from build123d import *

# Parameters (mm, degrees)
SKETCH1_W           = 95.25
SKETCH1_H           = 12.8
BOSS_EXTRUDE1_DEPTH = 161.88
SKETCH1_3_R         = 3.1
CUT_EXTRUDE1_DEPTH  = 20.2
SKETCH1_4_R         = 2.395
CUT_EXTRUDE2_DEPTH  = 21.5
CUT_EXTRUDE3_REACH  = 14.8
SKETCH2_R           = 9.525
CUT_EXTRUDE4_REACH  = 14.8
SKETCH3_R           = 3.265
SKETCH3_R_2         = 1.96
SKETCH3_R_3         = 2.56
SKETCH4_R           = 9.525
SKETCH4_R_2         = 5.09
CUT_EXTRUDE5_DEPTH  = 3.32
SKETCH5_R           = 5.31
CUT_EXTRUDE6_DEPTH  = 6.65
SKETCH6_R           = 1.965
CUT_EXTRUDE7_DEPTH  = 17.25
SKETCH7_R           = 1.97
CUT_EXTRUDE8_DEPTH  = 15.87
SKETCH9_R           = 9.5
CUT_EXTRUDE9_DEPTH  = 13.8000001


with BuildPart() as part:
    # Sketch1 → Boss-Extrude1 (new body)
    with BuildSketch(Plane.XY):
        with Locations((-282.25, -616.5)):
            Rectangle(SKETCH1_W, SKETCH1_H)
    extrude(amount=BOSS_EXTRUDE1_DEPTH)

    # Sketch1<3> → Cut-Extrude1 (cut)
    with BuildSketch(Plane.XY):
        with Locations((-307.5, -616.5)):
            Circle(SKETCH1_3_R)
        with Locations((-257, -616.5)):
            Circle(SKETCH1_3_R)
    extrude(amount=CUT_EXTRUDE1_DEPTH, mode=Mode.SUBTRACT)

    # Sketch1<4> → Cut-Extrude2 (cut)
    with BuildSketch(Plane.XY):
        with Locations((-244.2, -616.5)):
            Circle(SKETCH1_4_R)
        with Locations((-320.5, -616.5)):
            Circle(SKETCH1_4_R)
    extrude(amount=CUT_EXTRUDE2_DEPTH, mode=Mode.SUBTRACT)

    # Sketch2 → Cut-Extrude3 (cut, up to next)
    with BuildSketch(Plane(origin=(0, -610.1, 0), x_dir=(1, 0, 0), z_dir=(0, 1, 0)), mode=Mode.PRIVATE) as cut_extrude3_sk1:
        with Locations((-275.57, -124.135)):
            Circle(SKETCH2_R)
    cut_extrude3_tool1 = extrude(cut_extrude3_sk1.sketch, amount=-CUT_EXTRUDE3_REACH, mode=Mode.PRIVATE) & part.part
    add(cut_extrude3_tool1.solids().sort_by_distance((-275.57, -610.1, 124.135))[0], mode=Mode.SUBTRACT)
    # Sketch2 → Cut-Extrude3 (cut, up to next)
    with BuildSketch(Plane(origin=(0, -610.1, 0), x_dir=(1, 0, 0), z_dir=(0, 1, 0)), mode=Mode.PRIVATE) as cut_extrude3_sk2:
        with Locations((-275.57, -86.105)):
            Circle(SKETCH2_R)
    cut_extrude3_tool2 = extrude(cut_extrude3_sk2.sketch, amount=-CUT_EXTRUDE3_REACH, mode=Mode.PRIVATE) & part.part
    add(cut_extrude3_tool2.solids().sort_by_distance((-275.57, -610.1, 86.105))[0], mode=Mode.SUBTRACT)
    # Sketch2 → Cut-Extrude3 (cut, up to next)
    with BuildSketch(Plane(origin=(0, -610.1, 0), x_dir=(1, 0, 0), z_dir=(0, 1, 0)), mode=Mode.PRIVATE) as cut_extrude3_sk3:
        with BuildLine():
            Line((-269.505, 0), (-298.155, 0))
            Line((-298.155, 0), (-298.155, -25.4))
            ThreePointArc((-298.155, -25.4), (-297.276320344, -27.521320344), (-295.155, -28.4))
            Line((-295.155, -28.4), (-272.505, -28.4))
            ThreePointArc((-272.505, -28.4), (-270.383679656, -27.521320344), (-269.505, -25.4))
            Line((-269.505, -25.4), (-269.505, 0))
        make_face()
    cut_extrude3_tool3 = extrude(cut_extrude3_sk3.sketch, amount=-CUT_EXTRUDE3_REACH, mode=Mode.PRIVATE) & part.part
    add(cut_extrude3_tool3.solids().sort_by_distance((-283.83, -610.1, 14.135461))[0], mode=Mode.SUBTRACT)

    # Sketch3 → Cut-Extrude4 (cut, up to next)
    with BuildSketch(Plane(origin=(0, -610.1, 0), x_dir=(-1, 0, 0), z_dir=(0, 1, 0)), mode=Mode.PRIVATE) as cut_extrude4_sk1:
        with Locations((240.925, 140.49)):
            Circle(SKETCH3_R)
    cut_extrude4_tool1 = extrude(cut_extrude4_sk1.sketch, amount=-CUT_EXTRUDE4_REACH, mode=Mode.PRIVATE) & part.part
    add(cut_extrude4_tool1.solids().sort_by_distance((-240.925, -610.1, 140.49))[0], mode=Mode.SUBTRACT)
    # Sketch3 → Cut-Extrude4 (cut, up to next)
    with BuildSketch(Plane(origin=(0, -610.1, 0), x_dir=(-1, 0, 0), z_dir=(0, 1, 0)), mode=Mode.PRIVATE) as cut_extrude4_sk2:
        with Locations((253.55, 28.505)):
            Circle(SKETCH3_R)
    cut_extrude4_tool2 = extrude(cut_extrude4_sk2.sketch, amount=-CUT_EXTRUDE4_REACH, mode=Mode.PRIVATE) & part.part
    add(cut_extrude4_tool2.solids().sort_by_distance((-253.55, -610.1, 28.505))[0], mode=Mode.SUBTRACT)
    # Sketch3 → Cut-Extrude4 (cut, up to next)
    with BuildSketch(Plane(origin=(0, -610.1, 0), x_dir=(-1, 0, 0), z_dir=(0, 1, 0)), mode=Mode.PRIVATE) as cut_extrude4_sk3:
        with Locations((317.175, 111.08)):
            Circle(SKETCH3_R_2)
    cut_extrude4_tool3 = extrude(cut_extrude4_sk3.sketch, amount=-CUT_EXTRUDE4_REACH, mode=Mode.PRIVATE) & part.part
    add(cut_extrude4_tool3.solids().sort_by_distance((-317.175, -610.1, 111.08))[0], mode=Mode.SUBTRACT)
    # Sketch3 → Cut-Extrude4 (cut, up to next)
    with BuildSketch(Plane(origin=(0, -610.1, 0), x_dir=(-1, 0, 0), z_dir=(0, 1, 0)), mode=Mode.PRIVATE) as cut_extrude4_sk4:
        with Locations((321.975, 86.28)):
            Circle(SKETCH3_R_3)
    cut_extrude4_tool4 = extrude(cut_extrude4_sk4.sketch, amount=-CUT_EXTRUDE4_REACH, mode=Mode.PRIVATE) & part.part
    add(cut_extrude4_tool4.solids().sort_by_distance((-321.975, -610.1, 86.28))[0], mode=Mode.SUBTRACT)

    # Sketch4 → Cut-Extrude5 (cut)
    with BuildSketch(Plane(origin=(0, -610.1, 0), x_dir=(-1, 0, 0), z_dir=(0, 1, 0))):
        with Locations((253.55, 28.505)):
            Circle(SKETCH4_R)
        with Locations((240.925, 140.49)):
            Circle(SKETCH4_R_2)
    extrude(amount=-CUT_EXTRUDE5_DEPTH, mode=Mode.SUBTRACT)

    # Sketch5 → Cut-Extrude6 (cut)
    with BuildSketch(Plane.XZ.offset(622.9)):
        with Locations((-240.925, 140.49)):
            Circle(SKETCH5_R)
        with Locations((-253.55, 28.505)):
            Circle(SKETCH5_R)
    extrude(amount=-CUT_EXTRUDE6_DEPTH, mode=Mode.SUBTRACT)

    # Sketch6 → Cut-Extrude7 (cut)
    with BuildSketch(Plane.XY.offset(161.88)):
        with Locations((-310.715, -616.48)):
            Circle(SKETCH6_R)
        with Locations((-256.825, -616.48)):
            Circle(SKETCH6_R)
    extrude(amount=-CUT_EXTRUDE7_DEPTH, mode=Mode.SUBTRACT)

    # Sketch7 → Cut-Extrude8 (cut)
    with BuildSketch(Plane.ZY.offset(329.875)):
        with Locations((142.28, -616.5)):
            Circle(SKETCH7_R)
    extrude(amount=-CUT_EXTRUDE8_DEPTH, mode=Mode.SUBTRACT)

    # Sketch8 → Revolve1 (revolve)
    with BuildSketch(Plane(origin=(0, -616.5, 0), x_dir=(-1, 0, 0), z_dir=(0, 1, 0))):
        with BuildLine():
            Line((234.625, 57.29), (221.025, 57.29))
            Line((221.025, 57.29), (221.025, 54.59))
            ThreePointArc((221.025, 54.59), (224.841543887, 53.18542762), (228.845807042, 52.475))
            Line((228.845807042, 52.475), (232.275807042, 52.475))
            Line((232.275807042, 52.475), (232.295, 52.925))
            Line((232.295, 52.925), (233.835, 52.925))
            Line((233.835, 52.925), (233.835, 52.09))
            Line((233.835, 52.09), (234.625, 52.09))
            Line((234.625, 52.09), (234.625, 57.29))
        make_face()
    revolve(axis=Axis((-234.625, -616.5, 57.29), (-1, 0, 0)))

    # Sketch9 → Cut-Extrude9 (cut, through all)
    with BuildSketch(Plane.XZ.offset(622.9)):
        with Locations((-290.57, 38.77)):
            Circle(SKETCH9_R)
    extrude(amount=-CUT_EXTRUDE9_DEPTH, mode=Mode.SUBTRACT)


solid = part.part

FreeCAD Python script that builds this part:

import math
import FreeCAD as App
import Part
import Sketcher

doc = App.newDocument("Part")
body = doc.addObject("PartDesign::Body", "Body")

sketch1 = body.newObject("Sketcher::SketchObject", "Sketch")
sketch1.AttachmentSupport = (doc.getObject("XY_Plane"), [""])
sketch1.MapMode = "FlatFace"
sketch1.addGeometry([
    Part.LineSegment(App.Vector(-329.875, -610.1, 0), App.Vector(-329.875, -622.9, 0)),
    Part.LineSegment(App.Vector(-329.875, -622.9, 0), App.Vector(-234.625, -622.9, 0)),
    Part.LineSegment(App.Vector(-234.625, -622.9, 0), App.Vector(-234.625, -610.1, 0)),
    Part.LineSegment(App.Vector(-234.625, -610.1, 0), App.Vector(-329.875, -610.1, 0)),
], False)
sketch1.addConstraint([
    Sketcher.Constraint("Coincident", 0, 2, 1, 1),
    Sketcher.Constraint("Coincident", 1, 2, 2, 1),
    Sketcher.Constraint("Coincident", 2, 2, 3, 1),
    Sketcher.Constraint("Coincident", 3, 2, 0, 1),
    Sketcher.Constraint("Vertical", 0),
    Sketcher.Constraint("Horizontal", 1),
    Sketcher.Constraint("Vertical", 2),
    Sketcher.Constraint("Horizontal", 3),
    Sketcher.Constraint("DistanceY", 0, 2, 0, 1, 12.8),
    Sketcher.Constraint("DistanceX", 1, 1, 1, 2, 95.25),
    Sketcher.Constraint("DistanceY", 0, 2, -1, 1, 622.9),
    Sketcher.Constraint("DistanceX", 0, 2, -1, 1, 329.875),
])
pad1 = body.newObject("PartDesign::Pad", "Pad")
pad1.Profile = sketch1
pad1.Length = 161.88

sketch2 = body.newObject("Sketcher::SketchObject", "Sketch001")
sketch2.AttachmentSupport = (doc.getObject("XY_Plane"), [""])
sketch2.MapMode = "FlatFace"
sketch2.addGeometry([
    Part.Circle(App.Vector(-307.5, -616.5, 0), App.Vector(0, 0, 1), 3.1),
    Part.Circle(App.Vector(-257, -616.5, 0), App.Vector(0, 0, 1), 3.1),
], False)
sketch2.addConstraint([
    Sketcher.Constraint("Equal", 0, 1),
    Sketcher.Constraint("Horizontal", 0, 3, 1, 3),
    Sketcher.Constraint("Diameter", 0, 6.2),
    Sketcher.Constraint("DistanceX", 1, 3, -1, 1, 257.0),
    Sketcher.Constraint("DistanceX", 0, 3, -1, 1, 307.5),
    Sketcher.Constraint("DistanceY", 0, 3, -1, 1, 616.5),
])
pocket1 = body.newObject("PartDesign::Pocket", "Pocket")
pocket1.Profile = sketch2
pocket1.Length = 20.2
pocket1.Reversed = True

sketch3 = body.newObject("Sketcher::SketchObject", "Sketch002")
sketch3.AttachmentSupport = (doc.getObject("XY_Plane"), [""])
sketch3.MapMode = "FlatFace"
sketch3.addGeometry([
    Part.Circle(App.Vector(-244.2, -616.5, 0), App.Vector(0, 0, 1), 2.395),
    Part.Circle(App.Vector(-320.5, -616.5, 0), App.Vector(0, 0, 1), 2.395),
], False)
sketch3.addConstraint([
    Sketcher.Constraint("Equal", 0, 1),
    Sketcher.Constraint("Horizontal", 0, 3, 1, 3),
    Sketcher.Constraint("Diameter", 0, 4.79),
    Sketcher.Constraint("DistanceX", 0, 3, -1, 1, 244.2),
    Sketcher.Constraint("DistanceY", 0, 3, -1, 1, 616.5),
    Sketcher.Constraint("DistanceX", 1, 3, -1, 1, 320.5),
])
pocket2 = body.newObject("PartDesign::Pocket", "Pocket001")
pocket2.Profile = sketch3
pocket2.Length = 21.5
pocket2.Reversed = True

sketch4 = body.newObject("Sketcher::SketchObject", "Sketch003")
sketch4.AttachmentSupport = (doc.getObject("XZ_Plane"), [""])
sketch4.MapMode = "FlatFace"
sketch4.AttachmentOffset = App.Placement(App.Vector(0, 0, 610.1), App.Rotation())
sketch4.addGeometry(Part.Circle(App.Vector(-275.57, 124.135, 0), App.Vector(0, 0, 1), 9.525), False)
sketch4.addConstraint([
    Sketcher.Constraint("Diameter", 0, 19.05),
    Sketcher.Constraint("DistanceX", 0, 3, -1, 1, 275.57),
    Sketcher.Constraint("DistanceY", -1, 1, 0, 3, 124.135),
])
pocket3 = body.newObject("PartDesign::Pocket", "Pocket002")
pocket3.Profile = sketch4
pocket3.Type = "UpToFirst"
pocket3.Reversed = True

sketch5 = body.newObject("Sketcher::SketchObject", "Sketch004")
sketch5.AttachmentSupport = (doc.getObject("XZ_Plane"), [""])
sketch5.MapMode = "FlatFace"
sketch5.AttachmentOffset = App.Placement(App.Vector(0, 0, 610.1), App.Rotation())
sketch5.addGeometry(Part.Circle(App.Vector(-275.57, 86.105, 0), App.Vector(0, 0, 1), 9.525), False)
sketch5.addConstraint([
    Sketcher.Constraint("Diameter", 0, 19.05),
    Sketcher.Constraint("DistanceX", 0, 3, -1, 1, 275.57),
    Sketcher.Constraint("DistanceY", -1, 1, 0, 3, 86.105),
])
pocket4 = body.newObject("PartDesign::Pocket", "Pocket003")
pocket4.Profile = sketch5
pocket4.Type = "UpToFirst"
pocket4.Reversed = True

sketch6 = body.newObject("Sketcher::SketchObject", "Sketch005")
sketch6.AttachmentSupport = (doc.getObject("XZ_Plane"), [""])
sketch6.MapMode = "FlatFace"
sketch6.AttachmentOffset = App.Placement(App.Vector(0, 0, 610.1), App.Rotation())
sketch6.addGeometry([
    Part.LineSegment(App.Vector(-269.505, 0, 0), App.Vector(-298.155, 0, 0)),
    Part.LineSegment(App.Vector(-298.155, 0, 0), App.Vector(-298.155, 25.4, 0)),
    Part.ArcOfCircle(Part.Circle(App.Vector(-295.155, 25.4, 0), App.Vector(0, 0, 1), 3), math.radians(90), math.radians(180)),
    Part.LineSegment(App.Vector(-295.155, 28.4, 0), App.Vector(-272.505, 28.4, 0)),
    Part.ArcOfCircle(Part.Circle(App.Vector(-272.505, 25.4, 0), App.Vector(0, 0, 1), 3), math.radians(0), math.radians(90)),
    Part.LineSegment(App.Vector(-269.505, 25.4, 0), App.Vector(-269.505, 0, 0)),
], False)
sketch6.addConstraint([
    Sketcher.Constraint("Coincident", 0, 2, 1, 1),
    Sketcher.Constraint("Tangent", 1, 2, 2, 2),
    Sketcher.Constraint("Tangent", 2, 1, 3, 1),
    Sketcher.Constraint("Tangent", 3, 2, 4, 2),
    Sketcher.Constraint("Tangent", 4, 1, 5, 1),
    Sketcher.Constraint("Coincident", 5, 2, 0, 1),
    Sketcher.Constraint("Horizontal", 0),
    Sketcher.Constraint("Vertical", 1),
    Sketcher.Constraint("Horizontal", 3),
    Sketcher.Constraint("Vertical", 5),
    Sketcher.Constraint("Equal", 2, 4),
    Sketcher.Constraint("PointOnObject", 0, 2, -1),
    Sketcher.Constraint("Radius", 2, 3.0),
    Sketcher.Constraint("DistanceY", 1, 1, 1, 2, 25.4),
    Sketcher.Constraint("DistanceX", 0, 2, 0, 1, 28.65),
    Sketcher.Constraint("DistanceX", 2, 3, -1, 1, 295.155),
])
pocket5 = body.newObject("PartDesign::Pocket", "Pocket004")
pocket5.Profile = sketch6
pocket5.Type = "UpToFirst"
pocket5.Reversed = True

sketch7 = body.newObject("Sketcher::SketchObject", "Sketch006")
sketch7.AttachmentSupport = (doc.getObject("XZ_Plane"), [""])
sketch7.MapMode = "FlatFace"
sketch7.AttachmentOffset = App.Placement(App.Vector(0, 0, 610.1), App.Rotation())
sketch7.addGeometry(Part.Circle(App.Vector(-240.925, 140.49, 0), App.Vector(0, 0, 1), 3.265), False)
sketch7.addConstraint([
    Sketcher.Constraint("Diameter", 0, 6.53),
    Sketcher.Constraint("DistanceY", -1, 1, 0, 3, 140.49),
    Sketcher.Constraint("DistanceX", 0, 3, -1, 1, 240.925),
])
pocket6 = body.newObject("PartDesign::Pocket", "Pocket005")
pocket6.Profile = sketch7
pocket6.Type = "UpToFirst"
pocket6.Reversed = True

sketch8 = body.newObject("Sketcher::SketchObject", "Sketch007")
sketch8.AttachmentSupport = (doc.getObject("XZ_Plane"), [""])
sketch8.MapMode = "FlatFace"
sketch8.AttachmentOffset = App.Placement(App.Vector(0, 0, 610.1), App.Rotation())
sketch8.addGeometry(Part.Circle(App.Vector(-253.55, 28.505, 0), App.Vector(0, 0, 1), 3.265), False)
sketch8.addConstraint([
    Sketcher.Constraint("Diameter", 0, 6.53),
    Sketcher.Constraint("DistanceX", 0, 3, -1, 1, 253.55),
    Sketcher.Constraint("DistanceY", -1, 1, 0, 3, 28.505),
])
pocket7 = body.newObject("PartDesign::Pocket", "Pocket006")
pocket7.Profile = sketch8
pocket7.Type = "UpToFirst"
pocket7.Reversed = True

sketch9 = body.newObject("Sketcher::SketchObject", "Sketch008")
sketch9.AttachmentSupport = (doc.getObject("XZ_Plane"), [""])
sketch9.MapMode = "FlatFace"
sketch9.AttachmentOffset = App.Placement(App.Vector(0, 0, 610.1), App.Rotation())
sketch9.addGeometry(Part.Circle(App.Vector(-317.175, 111.08, 0), App.Vector(0, 0, 1), 1.96), False)
sketch9.addConstraint([
    Sketcher.Constraint("Diameter", 0, 3.92),
    Sketcher.Constraint("DistanceY", -1, 1, 0, 3, 111.08),
    Sketcher.Constraint("DistanceX", 0, 3, -1, 1, 317.175),
])
pocket8 = body.newObject("PartDesign::Pocket", "Pocket007")
pocket8.Profile = sketch9
pocket8.Type = "UpToFirst"
pocket8.Reversed = True

sketch10 = body.newObject("Sketcher::SketchObject", "Sketch009")
sketch10.AttachmentSupport = (doc.getObject("XZ_Plane"), [""])
sketch10.MapMode = "FlatFace"
sketch10.AttachmentOffset = App.Placement(App.Vector(0, 0, 610.1), App.Rotation())
sketch10.addGeometry(Part.Circle(App.Vector(-321.975, 86.28, 0), App.Vector(0, 0, 1), 2.56), False)
sketch10.addConstraint([
    Sketcher.Constraint("Diameter", 0, 5.12),
    Sketcher.Constraint("DistanceY", -1, 1, 0, 3, 86.28),
    Sketcher.Constraint("DistanceX", 0, 3, -1, 1, 321.975),
])
pocket9 = body.newObject("PartDesign::Pocket", "Pocket008")
pocket9.Profile = sketch10
pocket9.Type = "UpToFirst"
pocket9.Reversed = True

sketch11 = body.newObject("Sketcher::SketchObject", "Sketch010")
sketch11.AttachmentSupport = (doc.getObject("XZ_Plane"), [""])
sketch11.MapMode = "FlatFace"
sketch11.AttachmentOffset = App.Placement(App.Vector(0, 0, 610.1), App.Rotation())
sketch11.addGeometry([
    Part.Circle(App.Vector(-253.55, 28.505, 0), App.Vector(0, 0, 1), 9.525),
    Part.Circle(App.Vector(-240.925, 140.49, 0), App.Vector(0, 0, 1), 5.09),
], False)
sketch11.addConstraint([
    Sketcher.Constraint("Diameter", 0, 19.05),
    Sketcher.Constraint("Diameter", 1, 10.18),
    Sketcher.Constraint("DistanceX", 0, 3, -1, 1, 253.55),
    Sketcher.Constraint("DistanceY", -1, 1, 1, 3, 140.49),
    Sketcher.Constraint("DistanceY", -1, 1, 0, 3, 28.505),
    Sketcher.Constraint("DistanceX", 1, 3, -1, 1, 240.925),
])
pocket10 = body.newObject("PartDesign::Pocket", "Pocket009")
pocket10.Profile = sketch11
pocket10.Length = 3.32
pocket10.Reversed = True

sketch12 = body.newObject("Sketcher::SketchObject", "Sketch011")
sketch12.AttachmentSupport = (doc.getObject("XZ_Plane"), [""])
sketch12.MapMode = "FlatFace"
sketch12.AttachmentOffset = App.Placement(App.Vector(0, 0, 622.9), App.Rotation())
sketch12.addGeometry([
    Part.Circle(App.Vector(-240.925, 140.49, 0), App.Vector(0, 0, 1), 5.31),
    Part.Circle(App.Vector(-253.55, 28.505, 0), App.Vector(0, 0, 1), 5.31),
], False)
sketch12.addConstraint([
    Sketcher.Constraint("Equal", 0, 1),
    Sketcher.Constraint("Diameter", 0, 10.62),
    Sketcher.Constraint("DistanceY", -1, 1, 0, 3, 140.49),
    Sketcher.Constraint("DistanceX", 1, 3, -1, 1, 253.55),
    Sketcher.Constraint("DistanceX", 0, 3, -1, 1, 240.925),
    Sketcher.Constraint("DistanceY", -1, 1, 1, 3, 28.505),
])
pocket11 = body.newObject("PartDesign::Pocket", "Pocket010")
pocket11.Profile = sketch12
pocket11.Length = 6.65

sketch13 = body.newObject("Sketcher::SketchObject", "Sketch012")
sketch13.AttachmentSupport = (doc.getObject("XY_Plane"), [""])
sketch13.MapMode = "FlatFace"
sketch13.AttachmentOffset = App.Placement(App.Vector(0, 0, 161.88), App.Rotation())
sketch13.addGeometry([
    Part.Circle(App.Vector(-310.715, -616.48, 0), App.Vector(0, 0, 1), 1.965),
    Part.Circle(App.Vector(-256.825, -616.48, 0), App.Vector(0, 0, 1), 1.965),
], False)
sketch13.addConstraint([
    Sketcher.Constraint("Equal", 0, 1),
    Sketcher.Constraint("Horizontal", 0, 3, 1, 3),
    Sketcher.Constraint("Diameter", 0, 3.93),
    Sketcher.Constraint("DistanceY", 0, 3, -1, 1, 616.48),
    Sketcher.Constraint("DistanceX", 0, 3, 1, 3, 53.89),
    Sketcher.Constraint("DistanceX", 0, 3, -1, 1, 310.715),
])
pocket12 = body.newObject("PartDesign::Pocket", "Pocket011")
pocket12.Profile = sketch13
pocket12.Length = 17.25

sketch14 = body.newObject("Sketcher::SketchObject", "Sketch013")
sketch14.AttachmentSupport = (doc.getObject("YZ_Plane"), [""])
sketch14.MapMode = "FlatFace"
sketch14.AttachmentOffset = App.Placement(App.Vector(0, 0, -329.875), App.Rotation())
sketch14.addGeometry(Part.Circle(App.Vector(-616.5, 142.28, 0), App.Vector(0, 0, 1), 1.97), False)
sketch14.addConstraint([
    Sketcher.Constraint("Diameter", 0, 3.94),
    Sketcher.Constraint("DistanceX", 0, 3, -1, 1, 616.5),
    Sketcher.Constraint("DistanceY", -1, 1, 0, 3, 142.28),
])
pocket13 = body.newObject("PartDesign::Pocket", "Pocket012")
pocket13.Profile = sketch14
pocket13.Length = 15.87
pocket13.Reversed = True

sketch15 = body.newObject("Sketcher::SketchObject", "Sketch014")
sketch15.AttachmentSupport = (doc.getObject("XZ_Plane"), [""])
sketch15.MapMode = "FlatFace"
sketch15.AttachmentOffset = App.Placement(App.Vector(0, 0, 616.5), App.Rotation())
sketch15.addGeometry([
    Part.LineSegment(App.Vector(-234.625, 57.29, 0), App.Vector(-221.025, 57.29, 0)),
    Part.LineSegment(App.Vector(-221.025, 57.29, 0), App.Vector(-221.025, 54.59, 0)),
    Part.ArcOfCircle(Part.Circle(App.Vector(-230.845807, 75.387878, 0), App.Vector(0, 0, 1), 23), math.radians(-85.011458), math.radians(-64.723209)),
    Part.LineSegment(App.Vector(-228.845807, 52.475, 0), App.Vector(-232.275807, 52.475, 0)),
    Part.LineSegment(App.Vector(-232.275807, 52.475, 0), App.Vector(-232.295, 52.925, 0)),
    Part.LineSegment(App.Vector(-232.295, 52.925, 0), App.Vector(-233.835, 52.925, 0)),
    Part.LineSegment(App.Vector(-233.835, 52.925, 0), App.Vector(-233.835, 52.09, 0)),
    Part.LineSegment(App.Vector(-233.835, 52.09, 0), App.Vector(-234.625, 52.09, 0)),
    Part.LineSegment(App.Vector(-234.625, 52.09, 0), App.Vector(-234.625, 57.29, 0)),
], False)
sketch15.addGeometry(Part.LineSegment(App.Vector(-221.025, 57.29, 0), App.Vector(-234.625, 57.29, 0)), True)
sketch15.addConstraint([
    Sketcher.Constraint("Coincident", 0, 2, 1, 1),
    Sketcher.Constraint("Coincident", 1, 2, 2, 2),
    Sketcher.Constraint("Coincident", 2, 1, 3, 1),
    Sketcher.Constraint("Coincident", 3, 2, 4, 1),
    Sketcher.Constraint("Coincident", 4, 2, 5, 1),
    Sketcher.Constraint("Coincident", 5, 2, 6, 1),
    Sketcher.Constraint("Coincident", 6, 2, 7, 1),
    Sketcher.Constraint("Coincident", 7, 2, 8, 1),
    Sketcher.Constraint("Coincident", 8, 2, 0, 1),
    Sketcher.Constraint("Horizontal", 0),
    Sketcher.Constraint("Vertical", 1),
    Sketcher.Constraint("Horizontal", 3),
    Sketcher.Constraint("Horizontal", 5),
    Sketcher.Constraint("Vertical", 6),
    Sketcher.Constraint("Horizontal", 7),
    Sketcher.Constraint("Vertical", 8),
    Sketcher.Constraint("Horizontal", 9),
    Sketcher.Constraint("Coincident", 9, 1, 0, 2),
    Sketcher.Constraint("Vertical", 7, 2, 9, 2),
    Sketcher.Constraint("Radius", 2, 23.0),
    Sketcher.Constraint("DistanceX", 0, 1, 0, 2, 13.6),
    Sketcher.Constraint("DistanceY", 1, 2, 1, 1, 2.7),
    Sketcher.Constraint("DistanceY", 8, 1, 8, 2, 5.2),
    Sketcher.Constraint("DistanceX", 2, 3, 2, 1, 2.0),
    Sketcher.Constraint("DistanceX", 3, 2, 3, 1, 3.43),
    Sketcher.Constraint("DistanceX", 5, 2, 5, 1, 1.54),
    Sketcher.Constraint("DistanceX", 7, 2, 7, 1, 0.79),
    Sketcher.Constraint("DistanceY", 6, 2, 6, 1, 0.835),
    Sketcher.Constraint("DistanceY", -1, 1, 0, 2, 57.29),
    Sketcher.Constraint("DistanceY", 3, 2, 4, 2, 0.45),
    Sketcher.Constraint("DistanceX", 0, 2, -1, 1, 221.025),
])
revolution = body.newObject("PartDesign::Revolution", "Revolution")
revolution.Profile = sketch15
revolution.ReferenceAxis = (sketch15, ["Axis0"])
revolution.Angle = 360

sketch16 = body.newObject("Sketcher::SketchObject", "Sketch015")
sketch16.AttachmentSupport = (doc.getObject("XZ_Plane"), [""])
sketch16.MapMode = "FlatFace"
sketch16.AttachmentOffset = App.Placement(App.Vector(0, 0, 622.9), App.Rotation())
sketch16.addGeometry(Part.Circle(App.Vector(-290.57, 38.77, 0), App.Vector(0, 0, 1), 9.5), False)
sketch16.addConstraint([
    Sketcher.Constraint("Diameter", 0, 19.0),
    Sketcher.Constraint("DistanceX", 0, 3, -1, 1, 290.57),
    Sketcher.Constraint("DistanceY", -1, 1, 0, 3, 38.77),
])
pocket14 = body.newObject("PartDesign::Pocket", "Pocket013")
pocket14.Profile = sketch16
pocket14.Type = "ThroughAll"

doc.recompute()
